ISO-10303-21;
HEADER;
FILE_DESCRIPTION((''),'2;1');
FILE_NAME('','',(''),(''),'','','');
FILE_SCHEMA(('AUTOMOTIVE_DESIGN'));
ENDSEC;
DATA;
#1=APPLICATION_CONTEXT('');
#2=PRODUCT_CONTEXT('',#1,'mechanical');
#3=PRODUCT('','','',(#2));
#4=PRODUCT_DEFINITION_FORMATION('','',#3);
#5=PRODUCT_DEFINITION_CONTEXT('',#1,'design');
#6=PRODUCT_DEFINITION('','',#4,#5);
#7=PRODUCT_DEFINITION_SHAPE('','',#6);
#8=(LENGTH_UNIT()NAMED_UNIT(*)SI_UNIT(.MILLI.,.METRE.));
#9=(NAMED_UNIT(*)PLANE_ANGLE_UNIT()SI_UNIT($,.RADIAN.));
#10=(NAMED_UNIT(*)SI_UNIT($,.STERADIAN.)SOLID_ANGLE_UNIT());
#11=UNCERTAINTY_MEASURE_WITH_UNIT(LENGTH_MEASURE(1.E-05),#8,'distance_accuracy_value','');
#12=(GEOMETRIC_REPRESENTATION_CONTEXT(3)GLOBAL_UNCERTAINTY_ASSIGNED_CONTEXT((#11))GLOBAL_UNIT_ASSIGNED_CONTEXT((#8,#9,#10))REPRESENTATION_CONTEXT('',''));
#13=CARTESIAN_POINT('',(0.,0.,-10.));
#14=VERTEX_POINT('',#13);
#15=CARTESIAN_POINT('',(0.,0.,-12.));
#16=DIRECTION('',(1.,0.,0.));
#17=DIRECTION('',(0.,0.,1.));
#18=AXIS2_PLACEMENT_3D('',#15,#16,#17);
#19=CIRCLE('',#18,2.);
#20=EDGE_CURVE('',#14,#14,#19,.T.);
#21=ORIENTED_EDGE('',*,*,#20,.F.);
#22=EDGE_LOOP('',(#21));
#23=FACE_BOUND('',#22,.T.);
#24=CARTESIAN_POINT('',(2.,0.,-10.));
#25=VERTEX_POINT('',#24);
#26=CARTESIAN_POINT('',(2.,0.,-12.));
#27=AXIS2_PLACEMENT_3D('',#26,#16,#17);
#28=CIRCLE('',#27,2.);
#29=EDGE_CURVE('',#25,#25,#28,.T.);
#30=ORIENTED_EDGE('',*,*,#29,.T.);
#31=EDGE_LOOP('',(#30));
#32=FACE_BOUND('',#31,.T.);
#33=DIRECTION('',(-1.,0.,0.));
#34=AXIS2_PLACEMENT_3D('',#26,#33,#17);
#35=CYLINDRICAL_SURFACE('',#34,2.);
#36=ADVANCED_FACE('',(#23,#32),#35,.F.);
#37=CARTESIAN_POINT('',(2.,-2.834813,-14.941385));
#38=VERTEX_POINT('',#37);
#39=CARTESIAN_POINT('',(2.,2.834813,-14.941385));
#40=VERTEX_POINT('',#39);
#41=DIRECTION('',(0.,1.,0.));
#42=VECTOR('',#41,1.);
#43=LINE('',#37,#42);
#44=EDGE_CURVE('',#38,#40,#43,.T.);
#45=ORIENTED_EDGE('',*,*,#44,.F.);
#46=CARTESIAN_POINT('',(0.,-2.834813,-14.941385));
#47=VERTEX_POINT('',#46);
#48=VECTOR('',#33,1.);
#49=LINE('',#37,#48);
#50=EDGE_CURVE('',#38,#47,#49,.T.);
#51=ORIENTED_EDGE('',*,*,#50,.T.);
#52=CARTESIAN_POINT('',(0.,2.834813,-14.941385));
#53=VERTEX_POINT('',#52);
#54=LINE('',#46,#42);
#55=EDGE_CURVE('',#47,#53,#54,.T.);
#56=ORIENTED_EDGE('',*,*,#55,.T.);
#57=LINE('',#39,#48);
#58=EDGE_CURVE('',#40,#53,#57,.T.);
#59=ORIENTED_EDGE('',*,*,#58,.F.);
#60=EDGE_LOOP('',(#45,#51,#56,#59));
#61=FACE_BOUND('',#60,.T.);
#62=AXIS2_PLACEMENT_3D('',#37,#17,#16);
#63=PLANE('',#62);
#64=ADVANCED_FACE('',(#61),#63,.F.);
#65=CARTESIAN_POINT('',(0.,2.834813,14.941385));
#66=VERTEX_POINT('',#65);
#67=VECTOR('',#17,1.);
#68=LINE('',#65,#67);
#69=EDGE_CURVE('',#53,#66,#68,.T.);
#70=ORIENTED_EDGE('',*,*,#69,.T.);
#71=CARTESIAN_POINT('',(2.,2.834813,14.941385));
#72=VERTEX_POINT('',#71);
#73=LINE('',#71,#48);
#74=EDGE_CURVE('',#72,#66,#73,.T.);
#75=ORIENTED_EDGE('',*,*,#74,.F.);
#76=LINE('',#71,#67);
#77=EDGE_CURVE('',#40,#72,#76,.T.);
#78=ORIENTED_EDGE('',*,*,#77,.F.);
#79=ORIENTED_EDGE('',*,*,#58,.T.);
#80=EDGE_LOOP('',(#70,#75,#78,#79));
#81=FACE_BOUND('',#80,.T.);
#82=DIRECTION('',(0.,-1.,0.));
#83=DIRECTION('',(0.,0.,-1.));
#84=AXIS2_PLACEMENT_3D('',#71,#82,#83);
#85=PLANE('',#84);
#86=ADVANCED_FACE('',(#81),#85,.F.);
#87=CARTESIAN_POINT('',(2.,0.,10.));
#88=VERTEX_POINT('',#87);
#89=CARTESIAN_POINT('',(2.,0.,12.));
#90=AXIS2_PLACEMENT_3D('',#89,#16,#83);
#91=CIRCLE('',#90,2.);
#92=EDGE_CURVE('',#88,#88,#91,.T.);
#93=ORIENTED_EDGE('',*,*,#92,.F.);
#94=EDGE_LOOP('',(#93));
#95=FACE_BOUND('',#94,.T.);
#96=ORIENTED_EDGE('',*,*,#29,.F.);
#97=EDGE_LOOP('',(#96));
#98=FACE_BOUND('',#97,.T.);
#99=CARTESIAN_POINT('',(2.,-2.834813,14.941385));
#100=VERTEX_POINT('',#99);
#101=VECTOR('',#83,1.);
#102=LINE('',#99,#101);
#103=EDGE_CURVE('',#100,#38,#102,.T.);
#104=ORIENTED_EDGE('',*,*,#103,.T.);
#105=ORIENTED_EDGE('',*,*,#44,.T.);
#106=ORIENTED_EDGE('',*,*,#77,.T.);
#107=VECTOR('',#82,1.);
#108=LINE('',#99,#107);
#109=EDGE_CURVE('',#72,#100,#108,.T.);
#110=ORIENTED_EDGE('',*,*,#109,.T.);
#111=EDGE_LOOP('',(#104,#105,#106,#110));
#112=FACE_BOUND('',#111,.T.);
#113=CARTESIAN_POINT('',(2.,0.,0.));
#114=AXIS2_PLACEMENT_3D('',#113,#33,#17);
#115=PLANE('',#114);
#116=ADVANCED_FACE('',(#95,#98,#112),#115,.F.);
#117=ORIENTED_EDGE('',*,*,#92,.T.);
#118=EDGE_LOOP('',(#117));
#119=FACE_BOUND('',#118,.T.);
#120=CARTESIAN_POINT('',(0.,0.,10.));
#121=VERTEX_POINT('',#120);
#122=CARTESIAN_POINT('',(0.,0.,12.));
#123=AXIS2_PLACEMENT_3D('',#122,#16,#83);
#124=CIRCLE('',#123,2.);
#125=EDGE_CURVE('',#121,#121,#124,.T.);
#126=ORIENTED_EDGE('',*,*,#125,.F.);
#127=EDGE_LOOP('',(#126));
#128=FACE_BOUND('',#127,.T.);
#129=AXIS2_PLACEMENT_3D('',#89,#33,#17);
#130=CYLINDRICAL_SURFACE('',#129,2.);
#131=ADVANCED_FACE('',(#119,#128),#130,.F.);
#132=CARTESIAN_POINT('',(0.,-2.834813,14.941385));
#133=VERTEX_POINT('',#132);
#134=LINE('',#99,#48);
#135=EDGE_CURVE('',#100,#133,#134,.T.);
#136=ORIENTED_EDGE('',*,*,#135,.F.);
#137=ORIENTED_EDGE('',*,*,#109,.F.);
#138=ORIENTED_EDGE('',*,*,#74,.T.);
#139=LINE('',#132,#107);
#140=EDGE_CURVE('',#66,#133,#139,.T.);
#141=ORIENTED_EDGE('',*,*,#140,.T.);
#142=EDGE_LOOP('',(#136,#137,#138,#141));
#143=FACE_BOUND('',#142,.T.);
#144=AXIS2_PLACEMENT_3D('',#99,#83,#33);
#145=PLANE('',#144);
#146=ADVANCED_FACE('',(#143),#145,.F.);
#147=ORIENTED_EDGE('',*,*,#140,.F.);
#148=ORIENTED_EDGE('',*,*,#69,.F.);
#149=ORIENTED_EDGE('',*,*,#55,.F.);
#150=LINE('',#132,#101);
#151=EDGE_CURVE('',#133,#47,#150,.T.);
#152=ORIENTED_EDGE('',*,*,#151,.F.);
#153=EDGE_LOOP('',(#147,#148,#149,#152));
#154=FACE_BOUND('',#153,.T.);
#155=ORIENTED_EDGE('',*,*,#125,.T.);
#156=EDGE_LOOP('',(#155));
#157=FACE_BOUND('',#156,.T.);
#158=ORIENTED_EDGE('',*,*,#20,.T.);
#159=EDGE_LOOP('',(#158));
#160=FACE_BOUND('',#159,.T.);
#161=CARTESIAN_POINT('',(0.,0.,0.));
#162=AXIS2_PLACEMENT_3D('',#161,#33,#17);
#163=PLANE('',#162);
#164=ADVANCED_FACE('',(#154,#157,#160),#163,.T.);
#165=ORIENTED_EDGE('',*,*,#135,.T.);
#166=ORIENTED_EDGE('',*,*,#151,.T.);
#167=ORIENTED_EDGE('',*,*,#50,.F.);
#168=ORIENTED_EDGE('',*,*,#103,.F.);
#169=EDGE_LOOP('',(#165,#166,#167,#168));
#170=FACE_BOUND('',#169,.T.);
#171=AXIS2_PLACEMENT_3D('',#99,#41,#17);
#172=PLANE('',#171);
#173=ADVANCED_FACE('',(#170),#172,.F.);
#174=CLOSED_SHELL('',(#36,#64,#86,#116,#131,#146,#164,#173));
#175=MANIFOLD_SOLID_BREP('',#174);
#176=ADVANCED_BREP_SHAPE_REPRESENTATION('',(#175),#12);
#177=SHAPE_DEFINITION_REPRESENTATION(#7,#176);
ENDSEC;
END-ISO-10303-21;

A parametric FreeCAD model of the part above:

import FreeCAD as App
import Part
import Sketcher
from FreeCAD import Vector
Q = App.Units.Quantity


def add_polygon(sketch, points):
    """Adds a closed chain of lines whose ends are joined by coincident constraints."""
    first, n = sketch.GeometryCount, len(points)
    for a, b in zip(points, points[1:] + points[:1]):
        sketch.addGeometry(Part.LineSegment(App.Vector(*a, 0), App.Vector(*b, 0)), False)
    for i in range(n):
        sketch.addConstraint(Sketcher.Constraint("Coincident", first + i, 2, first + (i + 1) % n, 1))

doc = App.newDocument("Part")
body = doc.addObject("PartDesign::Body", "Body")

sketch1 = body.newObject("Sketcher::SketchObject", "Sketch")
sketch1.AttachmentSupport = (doc.getObject("YZ_Plane"), [""])
sketch1.MapMode = "FlatFace"
add_polygon(sketch1, [(2.8, 14.9), (-2.8, 14.9), (-2.8, -14.9), (2.8, -14.9)])
sketch1.addGeometry(Part.Circle(Vector(0, 12, 0), Vector(0, 0, 1), 2), False)
sketch1.addGeometry(Part.Circle(Vector(0, -12, 0), Vector(0, 0, 1), 2), False)
sketch1.addConstraint(Sketcher.Constraint("Horizontal", 0))
sketch1.addConstraint(Sketcher.Constraint("Vertical", 1))
sketch1.addConstraint(Sketcher.Constraint("Horizontal", 2))
sketch1.addConstraint(Sketcher.Constraint("Vertical", 3))
sketch1.addConstraint(Sketcher.Constraint("Equal", 4, 5))
sketch1.addConstraint(Sketcher.Constraint("Symmetric", 4, 3, 5, 3, -1, 1))
sketch1.addConstraint(Sketcher.Constraint("Symmetric", 0, 2, 2, 2, -1, 1))
sketch1.addConstraint(Sketcher.Constraint("PointOnObject", 4, 3, -2))
sketch1.addConstraint(Sketcher.Constraint("Diameter", 4, Q("4 mm")))
sketch1.addConstraint(Sketcher.Constraint("DistanceY", -1, 1, 4, 3, Q("12 mm")))
sketch1.addConstraint(Sketcher.Constraint("DistanceY", 1, 2, 1, 1, Q("29.882771 mm")))
sketch1.addConstraint(Sketcher.Constraint("DistanceX", 0, 2, 0, 1, Q("5.669627 mm")))
pad1 = body.newObject("PartDesign::Pad", "Pad")
pad1.Profile = sketch1
pad1.Length = 2

doc.recompute()
